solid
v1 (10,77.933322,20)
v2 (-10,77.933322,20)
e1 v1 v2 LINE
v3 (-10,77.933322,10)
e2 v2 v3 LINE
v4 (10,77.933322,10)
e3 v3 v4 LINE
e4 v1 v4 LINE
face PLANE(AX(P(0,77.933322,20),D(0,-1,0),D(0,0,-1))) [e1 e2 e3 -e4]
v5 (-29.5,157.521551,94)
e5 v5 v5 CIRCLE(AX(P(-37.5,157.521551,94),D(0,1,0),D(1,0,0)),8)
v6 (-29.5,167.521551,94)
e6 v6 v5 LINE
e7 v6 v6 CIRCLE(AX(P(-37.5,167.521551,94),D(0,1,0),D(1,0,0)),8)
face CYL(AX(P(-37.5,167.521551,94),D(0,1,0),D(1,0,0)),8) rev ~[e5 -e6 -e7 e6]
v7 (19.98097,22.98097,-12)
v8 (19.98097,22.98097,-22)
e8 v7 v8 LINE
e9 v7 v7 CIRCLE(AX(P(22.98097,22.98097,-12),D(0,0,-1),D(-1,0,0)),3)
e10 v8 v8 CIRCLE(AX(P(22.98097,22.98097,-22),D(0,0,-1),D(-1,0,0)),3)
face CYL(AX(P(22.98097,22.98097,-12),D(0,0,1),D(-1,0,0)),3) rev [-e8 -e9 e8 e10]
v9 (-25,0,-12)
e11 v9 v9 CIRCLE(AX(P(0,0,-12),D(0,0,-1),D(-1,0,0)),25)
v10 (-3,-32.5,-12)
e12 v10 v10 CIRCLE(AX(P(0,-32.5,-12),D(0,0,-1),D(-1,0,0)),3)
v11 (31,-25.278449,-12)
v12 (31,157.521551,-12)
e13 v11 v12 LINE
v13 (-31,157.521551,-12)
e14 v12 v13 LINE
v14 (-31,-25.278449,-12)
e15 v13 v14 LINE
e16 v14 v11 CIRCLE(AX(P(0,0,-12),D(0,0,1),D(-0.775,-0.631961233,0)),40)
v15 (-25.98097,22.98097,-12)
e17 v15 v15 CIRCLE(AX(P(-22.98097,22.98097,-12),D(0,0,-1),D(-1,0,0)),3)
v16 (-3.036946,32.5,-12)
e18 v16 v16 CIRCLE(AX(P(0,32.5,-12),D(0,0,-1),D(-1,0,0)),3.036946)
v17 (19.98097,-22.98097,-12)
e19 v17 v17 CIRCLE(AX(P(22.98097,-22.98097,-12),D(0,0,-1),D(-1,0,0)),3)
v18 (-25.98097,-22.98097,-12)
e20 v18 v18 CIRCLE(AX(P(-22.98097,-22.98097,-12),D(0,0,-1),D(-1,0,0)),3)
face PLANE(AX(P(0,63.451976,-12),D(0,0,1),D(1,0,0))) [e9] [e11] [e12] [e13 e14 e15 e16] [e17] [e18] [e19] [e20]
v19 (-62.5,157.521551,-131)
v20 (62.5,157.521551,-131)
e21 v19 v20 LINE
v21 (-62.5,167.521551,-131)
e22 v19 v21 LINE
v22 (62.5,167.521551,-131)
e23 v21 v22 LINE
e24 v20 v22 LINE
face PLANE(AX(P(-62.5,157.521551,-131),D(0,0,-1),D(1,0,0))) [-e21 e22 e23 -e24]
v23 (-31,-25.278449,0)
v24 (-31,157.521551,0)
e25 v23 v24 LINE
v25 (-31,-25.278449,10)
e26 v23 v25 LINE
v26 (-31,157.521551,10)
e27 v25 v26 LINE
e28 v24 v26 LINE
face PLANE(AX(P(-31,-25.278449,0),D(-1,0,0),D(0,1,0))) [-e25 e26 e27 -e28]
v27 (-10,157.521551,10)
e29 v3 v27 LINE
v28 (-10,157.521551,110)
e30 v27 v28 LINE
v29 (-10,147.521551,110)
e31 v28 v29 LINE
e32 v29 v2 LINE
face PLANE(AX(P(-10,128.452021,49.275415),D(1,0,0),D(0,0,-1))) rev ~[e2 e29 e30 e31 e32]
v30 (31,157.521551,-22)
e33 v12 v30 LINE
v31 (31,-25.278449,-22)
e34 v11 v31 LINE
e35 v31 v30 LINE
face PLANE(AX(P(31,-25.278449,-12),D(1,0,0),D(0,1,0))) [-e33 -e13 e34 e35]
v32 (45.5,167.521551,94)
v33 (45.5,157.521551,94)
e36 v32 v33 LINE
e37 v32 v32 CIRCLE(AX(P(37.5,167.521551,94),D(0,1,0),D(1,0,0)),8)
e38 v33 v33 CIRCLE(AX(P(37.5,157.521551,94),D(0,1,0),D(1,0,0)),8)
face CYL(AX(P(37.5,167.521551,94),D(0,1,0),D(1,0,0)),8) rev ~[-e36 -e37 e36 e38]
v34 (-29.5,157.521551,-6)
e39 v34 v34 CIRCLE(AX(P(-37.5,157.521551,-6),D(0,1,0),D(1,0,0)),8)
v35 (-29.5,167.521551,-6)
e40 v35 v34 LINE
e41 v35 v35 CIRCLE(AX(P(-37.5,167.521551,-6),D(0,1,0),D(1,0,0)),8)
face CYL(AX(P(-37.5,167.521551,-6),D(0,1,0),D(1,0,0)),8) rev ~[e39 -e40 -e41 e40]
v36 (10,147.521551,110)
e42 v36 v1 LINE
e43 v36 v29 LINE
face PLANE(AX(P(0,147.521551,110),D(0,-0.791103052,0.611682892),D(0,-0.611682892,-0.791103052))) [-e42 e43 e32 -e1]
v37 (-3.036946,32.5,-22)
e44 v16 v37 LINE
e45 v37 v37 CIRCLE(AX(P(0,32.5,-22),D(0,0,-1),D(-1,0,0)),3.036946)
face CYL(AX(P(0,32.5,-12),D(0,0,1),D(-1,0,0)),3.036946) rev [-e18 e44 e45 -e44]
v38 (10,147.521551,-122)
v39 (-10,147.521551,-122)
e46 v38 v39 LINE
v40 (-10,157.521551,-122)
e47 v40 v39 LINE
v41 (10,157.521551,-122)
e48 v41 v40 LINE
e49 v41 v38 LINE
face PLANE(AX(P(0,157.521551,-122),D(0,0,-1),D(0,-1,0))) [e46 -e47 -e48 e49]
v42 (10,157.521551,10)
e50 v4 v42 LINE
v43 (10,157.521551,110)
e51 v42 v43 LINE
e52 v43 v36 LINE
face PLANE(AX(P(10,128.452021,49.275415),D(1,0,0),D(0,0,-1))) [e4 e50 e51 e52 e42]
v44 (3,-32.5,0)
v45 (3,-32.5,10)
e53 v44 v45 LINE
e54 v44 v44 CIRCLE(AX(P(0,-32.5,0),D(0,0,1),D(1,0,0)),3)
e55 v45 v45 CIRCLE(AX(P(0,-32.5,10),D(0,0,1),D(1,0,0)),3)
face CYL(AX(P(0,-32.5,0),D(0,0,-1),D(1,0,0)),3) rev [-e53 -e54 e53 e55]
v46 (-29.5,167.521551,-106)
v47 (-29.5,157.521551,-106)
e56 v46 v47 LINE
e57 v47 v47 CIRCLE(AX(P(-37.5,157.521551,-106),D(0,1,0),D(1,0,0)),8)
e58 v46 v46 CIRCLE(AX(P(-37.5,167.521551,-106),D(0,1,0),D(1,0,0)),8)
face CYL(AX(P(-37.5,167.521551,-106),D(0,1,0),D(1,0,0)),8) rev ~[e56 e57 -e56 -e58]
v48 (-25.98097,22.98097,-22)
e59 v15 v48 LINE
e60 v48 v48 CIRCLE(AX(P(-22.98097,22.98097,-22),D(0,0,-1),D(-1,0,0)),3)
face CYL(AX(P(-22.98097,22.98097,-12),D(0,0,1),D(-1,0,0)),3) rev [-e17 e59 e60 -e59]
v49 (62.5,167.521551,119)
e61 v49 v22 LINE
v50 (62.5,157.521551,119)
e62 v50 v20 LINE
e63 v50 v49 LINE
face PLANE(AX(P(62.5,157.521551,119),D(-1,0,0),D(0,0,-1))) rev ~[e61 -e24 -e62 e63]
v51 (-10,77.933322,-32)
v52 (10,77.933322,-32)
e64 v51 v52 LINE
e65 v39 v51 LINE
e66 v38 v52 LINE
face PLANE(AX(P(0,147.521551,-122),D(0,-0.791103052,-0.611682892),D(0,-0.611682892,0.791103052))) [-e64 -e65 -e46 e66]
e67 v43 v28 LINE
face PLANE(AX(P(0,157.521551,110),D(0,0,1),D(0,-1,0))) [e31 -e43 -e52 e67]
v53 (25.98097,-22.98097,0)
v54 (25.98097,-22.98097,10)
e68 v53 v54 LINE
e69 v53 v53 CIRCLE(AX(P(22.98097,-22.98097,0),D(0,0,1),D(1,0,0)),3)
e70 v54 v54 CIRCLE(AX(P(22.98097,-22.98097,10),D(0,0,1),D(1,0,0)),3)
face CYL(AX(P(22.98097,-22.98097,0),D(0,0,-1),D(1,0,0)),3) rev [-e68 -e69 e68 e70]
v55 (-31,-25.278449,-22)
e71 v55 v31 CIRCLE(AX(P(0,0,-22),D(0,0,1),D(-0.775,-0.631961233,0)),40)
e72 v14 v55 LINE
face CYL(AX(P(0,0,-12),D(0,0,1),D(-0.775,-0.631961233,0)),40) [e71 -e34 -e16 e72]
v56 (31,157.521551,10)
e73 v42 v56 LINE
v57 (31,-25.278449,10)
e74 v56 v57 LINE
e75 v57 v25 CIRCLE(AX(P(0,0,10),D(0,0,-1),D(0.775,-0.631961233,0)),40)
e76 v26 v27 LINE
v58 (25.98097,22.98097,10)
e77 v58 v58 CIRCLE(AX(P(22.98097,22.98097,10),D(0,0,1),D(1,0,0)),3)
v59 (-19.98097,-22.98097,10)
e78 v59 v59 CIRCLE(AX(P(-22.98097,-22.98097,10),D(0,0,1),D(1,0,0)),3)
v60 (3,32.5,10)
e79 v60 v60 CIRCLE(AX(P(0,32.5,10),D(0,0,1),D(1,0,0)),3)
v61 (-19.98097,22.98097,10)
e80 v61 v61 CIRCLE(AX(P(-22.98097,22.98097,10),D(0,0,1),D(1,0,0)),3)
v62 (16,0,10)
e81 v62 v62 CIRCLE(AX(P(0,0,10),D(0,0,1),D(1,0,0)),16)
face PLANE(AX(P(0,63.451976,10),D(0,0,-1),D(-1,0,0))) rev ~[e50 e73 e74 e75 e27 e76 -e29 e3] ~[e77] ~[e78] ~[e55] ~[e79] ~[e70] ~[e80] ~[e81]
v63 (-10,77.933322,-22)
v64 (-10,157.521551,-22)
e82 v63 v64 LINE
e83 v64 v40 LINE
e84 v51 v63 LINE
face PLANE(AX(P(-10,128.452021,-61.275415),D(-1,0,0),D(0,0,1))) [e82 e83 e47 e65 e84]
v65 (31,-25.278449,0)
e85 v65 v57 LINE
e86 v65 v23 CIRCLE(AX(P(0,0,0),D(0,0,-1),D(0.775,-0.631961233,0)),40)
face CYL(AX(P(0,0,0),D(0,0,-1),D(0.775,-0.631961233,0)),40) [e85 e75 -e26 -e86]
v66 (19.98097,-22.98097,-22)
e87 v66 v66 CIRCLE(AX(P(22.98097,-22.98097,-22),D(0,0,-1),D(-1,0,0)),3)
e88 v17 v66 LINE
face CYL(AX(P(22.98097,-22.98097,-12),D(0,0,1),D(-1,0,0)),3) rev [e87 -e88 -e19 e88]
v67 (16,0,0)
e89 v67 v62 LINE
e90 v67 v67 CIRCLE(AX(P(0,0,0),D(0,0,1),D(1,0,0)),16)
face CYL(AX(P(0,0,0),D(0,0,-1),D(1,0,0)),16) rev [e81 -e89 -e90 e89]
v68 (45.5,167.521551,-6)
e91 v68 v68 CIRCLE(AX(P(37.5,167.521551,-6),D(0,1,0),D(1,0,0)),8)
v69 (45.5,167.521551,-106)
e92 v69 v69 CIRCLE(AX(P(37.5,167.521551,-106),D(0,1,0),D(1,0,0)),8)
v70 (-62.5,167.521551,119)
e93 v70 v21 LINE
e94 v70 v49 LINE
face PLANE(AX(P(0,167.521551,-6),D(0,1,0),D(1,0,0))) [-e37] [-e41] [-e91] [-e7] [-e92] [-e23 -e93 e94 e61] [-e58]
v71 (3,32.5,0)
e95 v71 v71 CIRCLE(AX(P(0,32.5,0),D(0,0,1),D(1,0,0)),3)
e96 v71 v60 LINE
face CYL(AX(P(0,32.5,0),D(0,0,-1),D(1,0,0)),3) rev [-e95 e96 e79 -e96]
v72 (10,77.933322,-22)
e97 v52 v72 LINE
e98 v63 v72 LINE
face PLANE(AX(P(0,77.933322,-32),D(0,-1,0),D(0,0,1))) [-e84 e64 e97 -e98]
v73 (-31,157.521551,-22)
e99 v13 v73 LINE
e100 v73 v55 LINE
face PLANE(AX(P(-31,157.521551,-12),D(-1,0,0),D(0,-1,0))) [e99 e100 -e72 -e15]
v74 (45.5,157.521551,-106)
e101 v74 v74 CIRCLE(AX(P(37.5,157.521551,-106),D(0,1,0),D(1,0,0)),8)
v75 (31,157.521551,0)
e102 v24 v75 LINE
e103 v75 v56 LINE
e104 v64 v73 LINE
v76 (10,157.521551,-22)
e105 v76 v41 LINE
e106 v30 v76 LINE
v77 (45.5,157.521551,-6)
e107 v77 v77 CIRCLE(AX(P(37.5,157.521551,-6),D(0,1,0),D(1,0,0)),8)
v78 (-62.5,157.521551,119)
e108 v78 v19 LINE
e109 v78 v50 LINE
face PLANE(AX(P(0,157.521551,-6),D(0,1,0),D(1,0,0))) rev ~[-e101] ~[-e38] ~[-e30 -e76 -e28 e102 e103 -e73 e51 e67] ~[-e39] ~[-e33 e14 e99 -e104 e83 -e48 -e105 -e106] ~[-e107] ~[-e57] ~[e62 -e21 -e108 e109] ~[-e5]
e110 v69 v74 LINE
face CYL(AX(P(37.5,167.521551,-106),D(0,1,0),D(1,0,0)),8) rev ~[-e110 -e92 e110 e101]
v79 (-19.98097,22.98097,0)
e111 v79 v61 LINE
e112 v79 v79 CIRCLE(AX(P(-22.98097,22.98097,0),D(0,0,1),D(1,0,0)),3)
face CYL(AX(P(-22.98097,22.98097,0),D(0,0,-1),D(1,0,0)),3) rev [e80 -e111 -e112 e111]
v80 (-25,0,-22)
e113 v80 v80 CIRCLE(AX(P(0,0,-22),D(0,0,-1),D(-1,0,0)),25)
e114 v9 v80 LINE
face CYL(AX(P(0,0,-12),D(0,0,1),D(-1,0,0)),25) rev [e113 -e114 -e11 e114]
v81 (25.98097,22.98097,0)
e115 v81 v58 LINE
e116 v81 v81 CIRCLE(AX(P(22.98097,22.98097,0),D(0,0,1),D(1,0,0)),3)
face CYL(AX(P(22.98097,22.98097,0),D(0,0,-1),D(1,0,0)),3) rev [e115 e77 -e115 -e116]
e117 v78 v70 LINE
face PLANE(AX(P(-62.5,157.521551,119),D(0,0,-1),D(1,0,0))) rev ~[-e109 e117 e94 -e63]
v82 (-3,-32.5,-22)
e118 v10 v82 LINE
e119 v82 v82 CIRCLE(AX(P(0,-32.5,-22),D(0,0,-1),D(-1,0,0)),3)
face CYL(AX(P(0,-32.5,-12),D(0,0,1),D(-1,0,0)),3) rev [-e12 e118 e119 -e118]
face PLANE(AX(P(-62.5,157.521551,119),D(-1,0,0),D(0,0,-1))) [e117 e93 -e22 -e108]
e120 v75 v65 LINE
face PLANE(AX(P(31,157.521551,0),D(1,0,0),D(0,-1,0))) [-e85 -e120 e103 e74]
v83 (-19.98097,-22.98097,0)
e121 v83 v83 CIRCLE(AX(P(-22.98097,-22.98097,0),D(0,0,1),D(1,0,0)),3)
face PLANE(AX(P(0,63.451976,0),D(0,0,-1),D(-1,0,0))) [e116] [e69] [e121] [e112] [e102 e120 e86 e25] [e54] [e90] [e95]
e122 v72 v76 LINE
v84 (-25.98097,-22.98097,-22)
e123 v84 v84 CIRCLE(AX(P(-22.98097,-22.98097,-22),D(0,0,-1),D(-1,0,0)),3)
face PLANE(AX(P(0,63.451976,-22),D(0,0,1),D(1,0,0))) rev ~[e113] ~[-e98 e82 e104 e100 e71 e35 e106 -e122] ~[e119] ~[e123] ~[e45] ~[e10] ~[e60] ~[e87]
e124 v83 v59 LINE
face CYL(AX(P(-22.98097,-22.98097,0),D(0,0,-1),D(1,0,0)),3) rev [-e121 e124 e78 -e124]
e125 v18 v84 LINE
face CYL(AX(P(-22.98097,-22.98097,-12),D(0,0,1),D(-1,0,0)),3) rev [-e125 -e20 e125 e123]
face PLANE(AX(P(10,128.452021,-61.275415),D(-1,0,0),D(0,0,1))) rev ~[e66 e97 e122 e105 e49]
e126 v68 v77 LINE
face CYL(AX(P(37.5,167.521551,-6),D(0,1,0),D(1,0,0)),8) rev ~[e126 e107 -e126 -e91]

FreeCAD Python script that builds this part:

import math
import FreeCAD as App
import Part
import Sketcher


def add_polygon(sketch, points):
    """Adds a closed chain of lines whose ends are joined by coincident constraints."""
    first, n = sketch.GeometryCount, len(points)
    for a, b in zip(points, points[1:] + points[:1]):
        sketch.addGeometry(Part.LineSegment(App.Vector(*a, 0), App.Vector(*b, 0)), False)
    for i in range(n):
        sketch.addConstraint(Sketcher.Constraint("Coincident", first + i, 2, first + (i + 1) % n, 1))

doc = App.newDocument("Part")
body = doc.addObject("PartDesign::Body", "Body")

sketch1 = doc.addObject("Sketcher::SketchObject", "Sketch")
body.addObject(sketch1)
sketch1.AttachmentSupport = (doc.XY_Plane, [""])
sketch1.MapMode = "FlatFace"
sketch1.addGeometry([
    Part.LineSegment(App.Vector(-31, 157.5, 0), App.Vector(-31, -25.3, 0)),
    Part.ArcOfCircle(Part.Circle(App.Vector(0, 0, 0), App.Vector(0, 0, 1), 40), math.radians(-141), math.radians(-39)),
    Part.LineSegment(App.Vector(31, -25.3, 0), App.Vector(31, 157.5, 0)),
    Part.LineSegment(App.Vector(31, 157.5, 0), App.Vector(-31, 157.5, 0)),
    Part.Circle(App.Vector(23, -23, 0), App.Vector(0, 0, 1), 3),
    Part.Circle(App.Vector(0, -32.5, 0), App.Vector(0, 0, 1), 3),
    Part.Circle(App.Vector(-23, -23, 0), App.Vector(0, 0, 1), 3),
    Part.Circle(App.Vector(0, 0, 0), App.Vector(0, 0, 1), 16),
    Part.Circle(App.Vector(23, 23, 0), App.Vector(0, 0, 1), 3),
    Part.Circle(App.Vector(0, 32.5, 0), App.Vector(0, 0, 1), 3),
    Part.Circle(App.Vector(-23, 23, 0), App.Vector(0, 0, 1), 3),
], False)
sketch1.addConstraint([
    Sketcher.Constraint("Coincident", 0, 2, 1, 1),
    Sketcher.Constraint("Coincident", 1, 2, 2, 1),
    Sketcher.Constraint("Coincident", 2, 2, 3, 1),
    Sketcher.Constraint("Coincident", 3, 2, 0, 1),
    Sketcher.Constraint("Vertical", 0),
    Sketcher.Constraint("Vertical", 2),
    Sketcher.Constraint("Horizontal", 3),
    Sketcher.Constraint("Coincident", 1, 3, -1, 1),
    Sketcher.Constraint("Coincident", 7, 3, -1, 1),
    Sketcher.Constraint("Equal", 4, 5),
    Sketcher.Constraint("Equal", 5, 6),
    Sketcher.Constraint("Equal", 6, 8),
    Sketcher.Constraint("Equal", 8, 9),
    Sketcher.Constraint("Equal", 9, 10),
    Sketcher.Constraint("Symmetric", 6, 3, 8, 3, -1, 1),
    Sketcher.Constraint("Symmetric", 5, 3, 9, 3, -1, 1),
    Sketcher.Constraint("Symmetric", 4, 3, 10, 3, -1, 1),
    Sketcher.Constraint("Symmetric", 4, 3, 6, 3, -2),
    Sketcher.Constraint("PointOnObject", 5, 3, -2),
    Sketcher.Constraint("Horizontal", 0, 2, 1, 2),
    Sketcher.Constraint("Diameter", 4, 6.0),
    Sketcher.Constraint("Diameter", 7, 32.0),
    Sketcher.Constraint("Radius", 1, 40.0),
    Sketcher.Constraint("DistanceX", 3, 2, 3, 1, 62.0),
    Sketcher.Constraint("DistanceY", 0, 2, 0, 1, 182.8),
    Sketcher.Constraint("DistanceY", 5, 3, -1, 1, 32.5),
    Sketcher.Constraint("DistanceX", -1, 1, 4, 3, 22.98097),
    Sketcher.Constraint("DistanceY", 4, 3, -1, 1, 22.98097),
])
pad1 = doc.addObject("PartDesign::Pad", "Pad")
body.addObject(pad1)
pad1.Profile = sketch1
pad1.Length = 10
body2 = doc.addObject("PartDesign::Body", "Body001")

sketch2 = doc.addObject("Sketcher::SketchObject", "Sketch001")
body2.addObject(sketch2)
sketch2.AttachmentSupport = (doc.getObject("XY_Plane001"), [""])
sketch2.MapMode = "FlatFace"
sketch2.AttachmentOffset = App.Placement(App.Vector(0, 0, -12), App.Rotation())
sketch2.addGeometry([
    Part.LineSegment(App.Vector(-31, 157.5, 0), App.Vector(31, 157.5, 0)),
    Part.LineSegment(App.Vector(31, 157.5, 0), App.Vector(31, -25.3, 0)),
    Part.ArcOfCircle(Part.Circle(App.Vector(0, 0, 0), App.Vector(0, 0, 1), 40), math.radians(-141), math.radians(-39)),
    Part.LineSegment(App.Vector(-31, -25.3, 0), App.Vector(-31, 157.5, 0)),
    Part.Circle(App.Vector(-23, -23, 0), App.Vector(0, 0, 1), 3),
    Part.Circle(App.Vector(0, -32.5, 0), App.Vector(0, 0, 1), 3),
    Part.Circle(App.Vector(0, 0, 0), App.Vector(0, 0, 1), 25),
    Part.Circle(App.Vector(23, -23, 0), App.Vector(0, 0, 1), 3),
    Part.Circle(App.Vector(-23, 23, 0), App.Vector(0, 0, 1), 3),
    Part.Circle(App.Vector(0, 32.5, 0), App.Vector(0, 0, 1), 3),
    Part.Circle(App.Vector(23, 23, 0), App.Vector(0, 0, 1), 3),
], False)
sketch2.addConstraint([
    Sketcher.Constraint("Coincident", 0, 2, 1, 1),
    Sketcher.Constraint("Coincident", 1, 2, 2, 2),
    Sketcher.Constraint("Coincident", 2, 1, 3, 1),
    Sketcher.Constraint("Coincident", 3, 2, 0, 1),
    Sketcher.Constraint("Horizontal", 0),
    Sketcher.Constraint("Vertical", 1),
    Sketcher.Constraint("Vertical", 3),
    Sketcher.Constraint("Coincident", 2, 3, -1, 1),
    Sketcher.Constraint("Coincident", 6, 3, -1, 1),
    Sketcher.Constraint("Equal", 4, 5),
    Sketcher.Constraint("Equal", 5, 7),
    Sketcher.Constraint("Equal", 7, 8),
    Sketcher.Constraint("Equal", 8, 10),
    Sketcher.Constraint("Symmetric", 7, 3, 8, 3, -1, 1),
    Sketcher.Constraint("Symmetric", 5, 3, 9, 3, -1, 1),
    Sketcher.Constraint("Symmetric", 4, 3, 10, 3, -1, 1),
    Sketcher.Constraint("Symmetric", 4, 3, 7, 3, -2),
    Sketcher.Constraint("PointOnObject", 5, 3, -2),
    Sketcher.Constraint("Horizontal", 1, 2, 2, 1),
    Sketcher.Constraint("Diameter", 4, 6.0),
    Sketcher.Constraint("Diameter", 6, 50.0),
    Sketcher.Constraint("Radius", 2, 40.0),
    Sketcher.Constraint("DistanceX", 0, 1, 0, 2, 62.0),
    Sketcher.Constraint("DistanceY", 1, 2, 1, 1, 182.8),
    Sketcher.Constraint("DistanceY", 5, 3, -1, 1, 32.5),
    Sketcher.Constraint("Diameter", 9, 6.073893),
    Sketcher.Constraint("DistanceX", 4, 3, -1, 1, 22.98097),
    Sketcher.Constraint("DistanceY", 4, 3, -1, 1, 22.98097),
])
pad2 = doc.addObject("PartDesign::Pad", "Pad001")
body2.addObject(pad2)
pad2.Profile = sketch2
pad2.Length = 10
pad2.Reversed = True
body.AllowCompound = True
doc.recompute()

boolean = doc.addObject("PartDesign::Boolean", "Boolean")
body.addObject(boolean)
boolean.Type = "Fuse"
boolean.addObjects([body2])

sketch3 = doc.addObject("Sketcher::SketchObject", "Sketch002")
body.addObject(sketch3)
sketch3.AttachmentSupport = (doc.XZ_Plane, [""])
sketch3.MapMode = "FlatFace"
sketch3.AttachmentOffset = App.Placement(App.Vector(0, 0, -157.521551), App.Rotation())
add_polygon(sketch3, [(-62, -131), (-62, 119), (62, 119), (62, -131)])
sketch3.addConstraint([
    Sketcher.Constraint("Vertical", 0),
    Sketcher.Constraint("Horizontal", 1),
    Sketcher.Constraint("Vertical", 2),
    Sketcher.Constraint("Horizontal", 3),
    Sketcher.Constraint("DistanceX", 1, 1, 1, 2, 125.0),
    Sketcher.Constraint("DistanceY", 0, 1, 0, 2, 250.0),
    Sketcher.Constraint("DistanceY", -1, 1, 0, 2, 119.0),
    Sketcher.Constraint("DistanceX", 0, 2, -1, 1, 62.5),
])
pad3 = doc.addObject("PartDesign::Pad", "Pad002")
body.addObject(pad3)
pad3.Profile = sketch3
pad3.Length = 10
pad3.Reversed = True

sketch4 = doc.addObject("Sketcher::SketchObject", "Sketch003")
body.addObject(sketch4)
sketch4.AttachmentSupport = (doc.YZ_Plane, [""])
sketch4.MapMode = "FlatFace"
add_polygon(sketch4, [(158, -122), (158, -22), (78, -22), (78, -32), (148, -122)])
add_polygon(sketch4, [(78, 20), (78, 10), (158, 10), (158, 110), (148, 110)])
sketch4.addConstraint([
    Sketcher.Constraint("Vertical", 0),
    Sketcher.Constraint("Horizontal", 1),
    Sketcher.Constraint("Vertical", 2),
    Sketcher.Constraint("Horizontal", 4),
    Sketcher.Constraint("Vertical", 5),
    Sketcher.Constraint("Horizontal", 6),
    Sketcher.Constraint("Vertical", 7),
    Sketcher.Constraint("Horizontal", 8),
    Sketcher.Constraint("Vertical", 2, 2, 5, 2),
    Sketcher.Constraint("Vertical", 4, 2, 6, 2),
    Sketcher.Constraint("Vertical", 3, 2, 8, 2),
    Sketcher.Constraint("Equal", 8, 2),
    Sketcher.Constraint("Equal", 2, 5),
    Sketcher.Constraint("Equal", 0, 7),
    Sketcher.Constraint("DistanceX", 4, 1, 4, 2, 10.0),
    Sketcher.Constraint("DistanceY", 0, 1, 0, 2, 100.0),
    Sketcher.Constraint("DistanceY", 0, 2, -1, 1, 22.0),
    Sketcher.Constraint("DistanceY", -1, 1, 5, 2, 10.0),
    Sketcher.Constraint("DistanceX", 1, 2, 1, 1, 79.588229),
    Sketcher.Constraint("DistanceX", -1, 1, 0, 2, 157.521551),
])
pad4 = doc.addObject("PartDesign::Pad", "Pad003")
body.addObject(pad4)
pad4.Profile = sketch4
pad4.Length = 20
pad4.Midplane = True

sketch5 = doc.addObject("Sketcher::SketchObject", "Sketch004")
body.addObject(sketch5)
sketch5.AttachmentSupport = (doc.XZ_Plane, [""])
sketch5.MapMode = "FlatFace"
sketch5.AttachmentOffset = App.Placement(App.Vector(0, 0, -167.521551), App.Rotation())
sketch5.addGeometry([
    Part.Circle(App.Vector(-38, -106, 0), App.Vector(0, 0, 1), 8),
    Part.Circle(App.Vector(38, -106, 0), App.Vector(0, 0, 1), 8),
    Part.Circle(App.Vector(38, -6, 0), App.Vector(0, 0, 1), 8),
    Part.Circle(App.Vector(38, 94, 0), App.Vector(0, 0, 1), 8),
    Part.Circle(App.Vector(-38, 94, 0), App.Vector(0, 0, 1), 8),
    Part.Circle(App.Vector(-38, -6, 0), App.Vector(0, 0, 1), 8),
], False)
sketch5.addConstraint([
    Sketcher.Constraint("Equal", 0, 1),
    Sketcher.Constraint("Equal", 1, 2),
    Sketcher.Constraint("Equal", 2, 3),
    Sketcher.Constraint("Equal", 3, 4),
    Sketcher.Constraint("Equal", 4, 5),
    Sketcher.Constraint("Symmetric", 0, 3, 1, 3, -2),
    Sketcher.Constraint("Symmetric", 3, 3, 4, 3, -2),
    Sketcher.Constraint("Symmetric", 2, 3, 5, 3, -2),
    Sketcher.Constraint("Vertical", 1, 3, 2, 3),
    Sketcher.Constraint("Vertical", 2, 3, 3, 3),
    Sketcher.Constraint("Diameter", 0, 16.0),
    Sketcher.Constraint("DistanceY", 0, 3, -1, 1, 106.0),
    Sketcher.Constraint("DistanceY", 2, 3, -1, 1, 6.0),
    Sketcher.Constraint("DistanceY", -1, 1, 3, 3, 94.0),
    Sketcher.Constraint("DistanceX", 0, 3, 1, 3, 75.0),
])
pocket1 = doc.addObject("PartDesign::Pocket", "Pocket")
body.addObject(pocket1)
pocket1.Profile = sketch5
pocket1.Length = 10
pocket1.Reversed = True

doc.recompute()
